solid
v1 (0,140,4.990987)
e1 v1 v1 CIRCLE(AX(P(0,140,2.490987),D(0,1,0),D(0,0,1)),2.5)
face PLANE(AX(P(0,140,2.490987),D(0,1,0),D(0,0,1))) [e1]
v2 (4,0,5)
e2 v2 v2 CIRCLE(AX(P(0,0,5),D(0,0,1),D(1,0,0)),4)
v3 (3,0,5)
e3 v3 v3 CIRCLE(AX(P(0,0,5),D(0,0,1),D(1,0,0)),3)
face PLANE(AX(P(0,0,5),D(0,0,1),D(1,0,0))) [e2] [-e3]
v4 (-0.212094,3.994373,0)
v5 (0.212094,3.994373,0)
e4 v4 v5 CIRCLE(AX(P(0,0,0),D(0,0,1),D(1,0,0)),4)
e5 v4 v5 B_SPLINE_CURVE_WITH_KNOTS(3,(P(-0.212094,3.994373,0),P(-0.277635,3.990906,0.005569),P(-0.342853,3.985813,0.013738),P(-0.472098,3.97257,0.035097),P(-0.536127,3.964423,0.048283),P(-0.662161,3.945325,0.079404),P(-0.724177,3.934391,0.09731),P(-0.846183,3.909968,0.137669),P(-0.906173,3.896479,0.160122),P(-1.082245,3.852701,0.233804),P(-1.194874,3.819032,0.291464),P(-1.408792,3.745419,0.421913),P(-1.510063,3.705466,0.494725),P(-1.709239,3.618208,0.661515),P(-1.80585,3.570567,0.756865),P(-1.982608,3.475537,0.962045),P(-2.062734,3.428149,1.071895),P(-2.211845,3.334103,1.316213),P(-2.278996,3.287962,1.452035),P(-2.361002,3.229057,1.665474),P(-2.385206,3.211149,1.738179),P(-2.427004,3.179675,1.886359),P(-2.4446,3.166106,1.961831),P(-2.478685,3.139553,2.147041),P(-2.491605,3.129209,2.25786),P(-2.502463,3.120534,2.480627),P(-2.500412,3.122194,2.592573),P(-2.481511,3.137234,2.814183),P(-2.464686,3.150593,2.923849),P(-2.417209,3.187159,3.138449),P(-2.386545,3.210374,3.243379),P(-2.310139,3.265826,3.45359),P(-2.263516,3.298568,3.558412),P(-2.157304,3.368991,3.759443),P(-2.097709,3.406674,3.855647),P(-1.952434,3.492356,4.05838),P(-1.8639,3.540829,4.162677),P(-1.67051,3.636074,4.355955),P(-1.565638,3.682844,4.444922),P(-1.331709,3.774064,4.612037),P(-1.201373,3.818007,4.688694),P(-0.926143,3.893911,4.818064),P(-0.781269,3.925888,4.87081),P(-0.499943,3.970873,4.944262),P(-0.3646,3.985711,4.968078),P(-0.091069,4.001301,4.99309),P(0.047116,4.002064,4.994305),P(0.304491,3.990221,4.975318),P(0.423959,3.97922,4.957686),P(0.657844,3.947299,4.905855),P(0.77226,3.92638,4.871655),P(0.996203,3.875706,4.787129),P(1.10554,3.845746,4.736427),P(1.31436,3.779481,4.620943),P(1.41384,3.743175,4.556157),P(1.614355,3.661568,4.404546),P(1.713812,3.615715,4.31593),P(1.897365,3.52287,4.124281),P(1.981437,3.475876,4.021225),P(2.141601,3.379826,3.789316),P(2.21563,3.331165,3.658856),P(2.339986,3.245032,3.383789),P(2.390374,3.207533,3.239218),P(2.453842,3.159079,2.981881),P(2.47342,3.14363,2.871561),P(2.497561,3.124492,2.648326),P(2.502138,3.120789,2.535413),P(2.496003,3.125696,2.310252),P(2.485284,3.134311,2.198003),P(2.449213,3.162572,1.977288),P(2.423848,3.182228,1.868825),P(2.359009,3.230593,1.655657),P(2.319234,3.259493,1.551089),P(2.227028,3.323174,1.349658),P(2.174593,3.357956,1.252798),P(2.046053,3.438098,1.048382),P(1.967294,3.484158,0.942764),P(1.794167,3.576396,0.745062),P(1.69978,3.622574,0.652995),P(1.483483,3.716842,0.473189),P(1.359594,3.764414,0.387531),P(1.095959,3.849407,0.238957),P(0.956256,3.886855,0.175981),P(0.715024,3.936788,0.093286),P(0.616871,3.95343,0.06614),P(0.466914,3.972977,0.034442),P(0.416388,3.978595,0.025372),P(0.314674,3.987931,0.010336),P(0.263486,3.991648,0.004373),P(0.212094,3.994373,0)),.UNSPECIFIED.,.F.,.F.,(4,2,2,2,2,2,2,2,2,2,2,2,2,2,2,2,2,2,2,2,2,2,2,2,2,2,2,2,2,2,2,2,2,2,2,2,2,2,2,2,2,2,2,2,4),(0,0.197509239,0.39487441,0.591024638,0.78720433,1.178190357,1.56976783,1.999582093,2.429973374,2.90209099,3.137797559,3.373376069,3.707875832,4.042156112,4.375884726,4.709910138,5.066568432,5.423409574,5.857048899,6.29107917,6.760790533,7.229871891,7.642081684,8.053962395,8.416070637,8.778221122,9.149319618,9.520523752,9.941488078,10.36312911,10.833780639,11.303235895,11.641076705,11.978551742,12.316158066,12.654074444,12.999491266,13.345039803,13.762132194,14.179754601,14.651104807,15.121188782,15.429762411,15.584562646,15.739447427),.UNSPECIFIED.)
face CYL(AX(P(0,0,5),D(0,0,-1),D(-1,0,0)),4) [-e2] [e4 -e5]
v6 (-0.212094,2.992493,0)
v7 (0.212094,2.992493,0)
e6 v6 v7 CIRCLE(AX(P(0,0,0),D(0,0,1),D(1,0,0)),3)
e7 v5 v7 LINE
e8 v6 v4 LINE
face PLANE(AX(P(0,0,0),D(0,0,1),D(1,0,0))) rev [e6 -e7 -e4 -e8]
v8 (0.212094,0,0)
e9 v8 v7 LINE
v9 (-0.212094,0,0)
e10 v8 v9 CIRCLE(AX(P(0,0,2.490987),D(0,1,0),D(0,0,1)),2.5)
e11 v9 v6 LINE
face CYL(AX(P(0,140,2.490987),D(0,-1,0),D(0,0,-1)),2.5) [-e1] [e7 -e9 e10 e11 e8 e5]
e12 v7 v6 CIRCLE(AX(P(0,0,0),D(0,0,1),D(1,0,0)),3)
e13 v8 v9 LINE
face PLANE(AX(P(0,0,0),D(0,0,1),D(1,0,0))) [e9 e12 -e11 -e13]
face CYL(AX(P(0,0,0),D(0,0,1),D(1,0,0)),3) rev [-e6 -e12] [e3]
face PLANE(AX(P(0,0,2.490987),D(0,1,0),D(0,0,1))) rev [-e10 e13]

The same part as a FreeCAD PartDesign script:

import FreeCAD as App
import Part
import Sketcher

V = App.Vector

doc = App.newDocument("Part")
params = doc.addObject("Spreadsheet::Sheet", "Params")
for row, (alias, value) in enumerate([
    ("sketch1_diameter", "8 mm"),
    ("pad1_length", "5 mm"),
    ("sketch2_diameter", "5 mm"),
    ("pad2_length", "140 mm"),
    ("sketch3_diameter", "6 mm"),
    ("pocket1_length", "5 mm"),
], start=1):
    params.set(f"A{row}", alias)
    params.set(f"B{row}", "=" + value)
    params.setAlias(f"B{row}", alias)

body = doc.addObject("PartDesign::Body", "Body")

# Sketch on XY plane
sketch1 = body.newObject("Sketcher::SketchObject", "Sketch")
sketch1.AttachmentSupport = (doc.getObject("XY_Plane"), [""])
sketch1.MapMode = "FlatFace"
sketch1.addGeometry(Part.Circle(V(0, 0, 0), V(0, 0, 1), 4), False)
sketch1.addConstraint([
    Sketcher.Constraint("Coincident", 0, 3, -1, 1),
    Sketcher.Constraint("Diameter", 0, 8.0),
])
sketch1.setExpression("Constraints[1]", "Params.sketch1_diameter")
pad1 = body.newObject("PartDesign::Pad", "Pad")
pad1.Profile = sketch1
pad1.setExpression("Length", "Params.pad1_length")

# Sketch on XZ plane
sketch2 = body.newObject("Sketcher::SketchObject", "Sketch001")
sketch2.AttachmentSupport = (doc.getObject("XZ_Plane"), [""])
sketch2.MapMode = "FlatFace"
sketch2.addGeometry(Part.Circle(V(0, 2.490987, 0), V(0, 0, 1), 2.5), False)
sketch2.addConstraint([
    Sketcher.Constraint("PointOnObject", 0, 3, -2),
    Sketcher.Constraint("Diameter", 0, 5.0),
    Sketcher.Constraint("DistanceY", -1, 1, 0, 3, 2.490987),
])
sketch2.setExpression("Constraints[1]", "Params.sketch2_diameter")
pad2 = body.newObject("PartDesign::Pad", "Pad001")
pad2.Profile = sketch2
pad2.setExpression("Length", "Params.pad2_length")
pad2.Reversed = True

# Sketch on XY plane
sketch3 = body.newObject("Sketcher::SketchObject", "Sketch002")
sketch3.AttachmentSupport = (doc.getObject("XY_Plane"), [""])
sketch3.MapMode = "FlatFace"
sketch3.AttachmentOffset = App.Placement(V(0, 0, 5), App.Rotation())
sketch3.addGeometry(Part.Circle(V(0, 0, 0), V(0, 0, 1), 3), False)
sketch3.addConstraint([
    Sketcher.Constraint("Coincident", 0, 3, -1, 1),
    Sketcher.Constraint("Diameter", 0, 6.0),
])
sketch3.setExpression("Constraints[1]", "Params.sketch3_diameter")
pocket1 = body.newObject("PartDesign::Pocket", "Pocket")
pocket1.Profile = sketch3
pocket1.setExpression("Length", "Params.pocket1_length")

doc.recompute()
